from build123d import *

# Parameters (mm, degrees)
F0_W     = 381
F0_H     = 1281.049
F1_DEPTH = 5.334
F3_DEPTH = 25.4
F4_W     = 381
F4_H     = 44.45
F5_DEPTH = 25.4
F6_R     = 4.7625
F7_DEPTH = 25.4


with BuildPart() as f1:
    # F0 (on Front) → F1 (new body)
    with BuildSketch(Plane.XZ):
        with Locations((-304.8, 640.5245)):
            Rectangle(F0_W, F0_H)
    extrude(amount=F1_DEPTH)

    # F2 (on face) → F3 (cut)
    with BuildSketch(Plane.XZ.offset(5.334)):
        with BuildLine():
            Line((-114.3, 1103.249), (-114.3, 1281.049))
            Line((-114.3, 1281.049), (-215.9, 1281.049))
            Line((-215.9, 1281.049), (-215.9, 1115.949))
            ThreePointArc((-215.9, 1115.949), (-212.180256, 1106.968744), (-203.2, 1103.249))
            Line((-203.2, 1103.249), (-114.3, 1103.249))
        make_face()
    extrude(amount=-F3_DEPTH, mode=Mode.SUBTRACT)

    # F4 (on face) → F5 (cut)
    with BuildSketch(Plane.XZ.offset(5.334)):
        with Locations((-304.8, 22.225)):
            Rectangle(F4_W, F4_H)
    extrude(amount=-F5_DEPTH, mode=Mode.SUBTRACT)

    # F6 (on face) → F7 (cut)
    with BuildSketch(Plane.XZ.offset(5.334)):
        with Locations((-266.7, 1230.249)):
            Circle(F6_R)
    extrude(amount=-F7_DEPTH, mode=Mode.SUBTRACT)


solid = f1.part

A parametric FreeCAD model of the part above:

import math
import FreeCAD as App
import Part
import Sketcher
from FreeCAD import Vector
Q = App.Units.Quantity

doc = App.newDocument("Part")
body = doc.addObject("PartDesign::Body", "Body")

sketch1 = doc.addObject("Sketcher::SketchObject", "Sketch")
body.addObject(sketch1)
sketch1.AttachmentSupport = (doc.XZ_Plane, [""])
sketch1.MapMode = "FlatFace"
sketch1.addGeometry(Part.LineSegment(Vector(-495.3, 1281.049, 0), Vector(-495.3, 0, 0)), False)
sketch1.addGeometry(Part.LineSegment(Vector(-495.3, 0, 0), Vector(-114.3, 0, 0)), False)
sketch1.addGeometry(Part.LineSegment(Vector(-114.3, 0, 0), Vector(-114.3, 1281.049, 0)), False)
sketch1.addGeometry(Part.LineSegment(Vector(-114.3, 1281.049, 0), Vector(-495.3, 1281.049, 0)), False)
sketch1.addConstraint(Sketcher.Constraint("Coincident", 0, 2, 1, 1))
sketch1.addConstraint(Sketcher.Constraint("Coincident", 1, 2, 2, 1))
sketch1.addConstraint(Sketcher.Constraint("Coincident", 2, 2, 3, 1))
sketch1.addConstraint(Sketcher.Constraint("Coincident", 3, 2, 0, 1))
sketch1.addConstraint(Sketcher.Constraint("Vertical", 0))
sketch1.addConstraint(Sketcher.Constraint("Horizontal", 1))
sketch1.addConstraint(Sketcher.Constraint("Vertical", 2))
sketch1.addConstraint(Sketcher.Constraint("Horizontal", 3))
sketch1.addConstraint(Sketcher.Constraint("PointOnObject", 0, 2, -1))
sketch1.addConstraint(Sketcher.Constraint("DistanceX", 1, 1, 1, 2, Q("15 in")))
sketch1.addConstraint(Sketcher.Constraint("DistanceX", 0, 2, -1, 1, Q("19.5 in")))
sketch1.addConstraint(Sketcher.Constraint("DistanceY", 0, 2, 0, 1, Q("50.435 in")))
pad1 = doc.addObject("PartDesign::Pad", "Pad")
body.addObject(pad1)
pad1.Profile = sketch1
pad1.Length = Q("0.21 in")

sketch2 = doc.addObject("Sketcher::SketchObject", "Sketch001")
body.addObject(sketch2)
sketch2.AttachmentSupport = (doc.XZ_Plane, [""])
sketch2.MapMode = "FlatFace"
sketch2.AttachmentOffset = App.Placement(Vector(0, 0, 0.21 * 25.4), App.Rotation())
sketch2.addGeometry(Part.LineSegment(Vector(-114.3, 1103.249, 0), Vector(-114.3, 1281.049, 0)), False)
sketch2.addGeometry(Part.LineSegment(Vector(-114.3, 1281.049, 0), Vector(-215.9, 1281.049, 0)), False)
sketch2.addGeometry(Part.LineSegment(Vector(-215.9, 1281.049, 0), Vector(-215.9, 1115.949, 0)), False)
sketch2.addGeometry(Part.ArcOfCircle(Part.Circle(Vector(-203.2, 1115.949, 0), Vector(0, 0, 1), 12.7), math.radians(-179.999998), math.radians(-90.000002)), False)
sketch2.addGeometry(Part.LineSegment(Vector(-203.2, 1103.249, 0), Vector(-114.3, 1103.249, 0)), False)
sketch2.addConstraint(Sketcher.Constraint("Coincident", 0, 2, 1, 1))
sketch2.addConstraint(Sketcher.Constraint("Coincident", 1, 2, 2, 1))
sketch2.addConstraint(Sketcher.Constraint("Tangent", 2, 2, 3, 1))
sketch2.addConstraint(Sketcher.Constraint("Tangent", 3, 2, 4, 1))
sketch2.addConstraint(Sketcher.Constraint("Coincident", 4, 2, 0, 1))
sketch2.addConstraint(Sketcher.Constraint("Vertical", 0))
sketch2.addConstraint(Sketcher.Constraint("Horizontal", 1))
sketch2.addConstraint(Sketcher.Constraint("Vertical", 2))
sketch2.addConstraint(Sketcher.Constraint("Horizontal", 4))
sketch2.addConstraint(Sketcher.Constraint("Radius", 3, Q("0.5 in")))
sketch2.addConstraint(Sketcher.Constraint("DistanceX", 1, 2, 1, 1, Q("4 in")))
sketch2.addConstraint(Sketcher.Constraint("DistanceY", 0, 1, 0, 2, Q("7 in")))
sketch2.addConstraint(Sketcher.Constraint("DistanceX", 3, 3, -1, 1, Q("8 in")))
sketch2.addConstraint(Sketcher.Constraint("DistanceY", -1, 1, 3, 3, Q("43.935 in")))
pocket1 = doc.addObject("PartDesign::Pocket", "Pocket")
body.addObject(pocket1)
pocket1.Profile = sketch2
pocket1.Length = Q("1 in")

sketch3 = doc.addObject("Sketcher::SketchObject", "Sketch002")
body.addObject(sketch3)
sketch3.AttachmentSupport = (doc.XZ_Plane, [""])
sketch3.MapMode = "FlatFace"
sketch3.AttachmentOffset = App.Placement(Vector(0, 0, 0.21 * 25.4), App.Rotation())
sketch3.addGeometry(Part.LineSegment(Vector(-495.3, 44.45, 0), Vector(-495.3, 0, 0)), False)
sketch3.addGeometry(Part.LineSegment(Vector(-495.3, 0, 0), Vector(-114.3, 0, 0)), False)
sketch3.addGeometry(Part.LineSegment(Vector(-114.3, 0, 0), Vector(-114.3, 44.45, 0)), False)
sketch3.addGeometry(Part.LineSegment(Vector(-114.3, 44.45, 0), Vector(-495.3, 44.45, 0)), False)
sketch3.addConstraint(Sketcher.Constraint("Coincident", 0, 2, 1, 1))
sketch3.addConstraint(Sketcher.Constraint("Coincident", 1, 2, 2, 1))
sketch3.addConstraint(Sketcher.Constraint("Coincident", 2, 2, 3, 1))
sketch3.addConstraint(Sketcher.Constraint("Coincident", 3, 2, 0, 1))
sketch3.addConstraint(Sketcher.Constraint("Vertical", 0))
sketch3.addConstraint(Sketcher.Constraint("Horizontal", 1))
sketch3.addConstraint(Sketcher.Constraint("Vertical", 2))
sketch3.addConstraint(Sketcher.Constraint("Horizontal", 3))
sketch3.addConstraint(Sketcher.Constraint("PointOnObject", 0, 2, -1))
sketch3.addConstraint(Sketcher.Constraint("DistanceX", 1, 1, 1, 2, Q("15 in")))
sketch3.addConstraint(Sketcher.Constraint("DistanceY", 0, 2, 0, 1, Q("1.75 in")))
sketch3.addConstraint(Sketcher.Constraint("DistanceX", 0, 2, -1, 1, Q("19.5 in")))
pocket2 = doc.addObject("PartDesign::Pocket", "Pocket001")
body.addObject(pocket2)
pocket2.Profile = sketch3
pocket2.Length = Q("1 in")

sketch4 = doc.addObject("Sketcher::SketchObject", "Sketch003")
body.addObject(sketch4)
sketch4.AttachmentSupport = (doc.XZ_Plane, [""])
sketch4.MapMode = "FlatFace"
sketch4.AttachmentOffset = App.Placement(Vector(0, 0, 0.21 * 25.4), App.Rotation())
sketch4.addGeometry(Part.Circle(Vector(-266.7, 1230.249, 0), Vector(0, 0, 1), 4.7625), False)
sketch4.addConstraint(Sketcher.Constraint("Diameter", 0, Q("0.375 in")))
sketch4.addConstraint(Sketcher.Constraint("DistanceX", 0, 3, -1, 1, Q("10.5 in")))
sketch4.addConstraint(Sketcher.Constraint("DistanceY", -1, 1, 0, 3, Q("48.435 in")))
pocket3 = doc.addObject("PartDesign::Pocket", "Pocket002")
body.addObject(pocket3)
pocket3.Profile = sketch4
pocket3.Length = Q("1 in")

doc.recompute()
